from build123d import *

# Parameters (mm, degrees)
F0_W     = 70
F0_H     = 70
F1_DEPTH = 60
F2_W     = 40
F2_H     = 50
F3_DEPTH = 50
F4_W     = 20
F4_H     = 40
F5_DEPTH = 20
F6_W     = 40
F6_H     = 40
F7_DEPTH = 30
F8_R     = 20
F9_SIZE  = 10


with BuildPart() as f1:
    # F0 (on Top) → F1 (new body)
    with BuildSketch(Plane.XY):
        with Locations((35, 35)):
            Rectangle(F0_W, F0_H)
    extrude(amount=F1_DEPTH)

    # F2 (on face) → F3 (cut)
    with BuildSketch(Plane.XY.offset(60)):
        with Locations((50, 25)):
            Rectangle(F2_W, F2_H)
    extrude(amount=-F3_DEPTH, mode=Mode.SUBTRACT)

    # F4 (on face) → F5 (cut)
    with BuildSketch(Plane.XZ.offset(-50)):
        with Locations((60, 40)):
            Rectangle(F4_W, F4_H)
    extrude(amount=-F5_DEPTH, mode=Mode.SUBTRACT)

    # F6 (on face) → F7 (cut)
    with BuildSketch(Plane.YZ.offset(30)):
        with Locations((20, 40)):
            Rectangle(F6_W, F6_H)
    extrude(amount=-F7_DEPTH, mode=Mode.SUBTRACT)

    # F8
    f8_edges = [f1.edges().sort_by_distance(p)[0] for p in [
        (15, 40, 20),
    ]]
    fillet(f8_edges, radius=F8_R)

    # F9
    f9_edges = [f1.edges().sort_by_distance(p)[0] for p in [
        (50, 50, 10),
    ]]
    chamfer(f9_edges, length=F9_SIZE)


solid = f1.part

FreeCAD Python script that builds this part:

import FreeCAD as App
import Part
import Sketcher

V = App.Vector


def edges_at(feature, points):
    """Names of the edges that pass closest to the given points."""
    edges = feature.Shape.Edges
    near = lambda p: min(range(len(edges)), key=lambda i: edges[i].distToShape(Part.Vertex(*p))[0])
    return sorted({f"Edge{near(p) + 1}" for p in points})

doc = App.newDocument("Part")
body = doc.addObject("PartDesign::Body", "Body")

# Sketch on XY plane
sketch1 = body.newObject("Sketcher::SketchObject", "Sketch")
sketch1.AttachmentSupport = (doc.getObject("XY_Plane"), [""])
sketch1.MapMode = "FlatFace"
sketch1.addGeometry([
    Part.LineSegment(V(0, 70, 0), V(0, 0, 0)),
    Part.LineSegment(V(0, 0, 0), V(70, 0, 0)),
    Part.LineSegment(V(70, 0, 0), V(70, 70, 0)),
    Part.LineSegment(V(70, 70, 0), V(0, 70, 0)),
], False)
sketch1.addConstraint([
    Sketcher.Constraint("Coincident", 0, 2, 1, 1),
    Sketcher.Constraint("Coincident", 1, 2, 2, 1),
    Sketcher.Constraint("Coincident", 2, 2, 3, 1),
    Sketcher.Constraint("Coincident", 3, 2, 0, 1),
    Sketcher.Constraint("Vertical", 0),
    Sketcher.Constraint("Horizontal", 1),
    Sketcher.Constraint("Vertical", 2),
    Sketcher.Constraint("Horizontal", 3),
    Sketcher.Constraint("Coincident", 0, 2, -1, 1),
    Sketcher.Constraint("Equal", 3, 0),
    Sketcher.Constraint("DistanceX", 1, 1, 1, 2, 70.0),
])
pad1 = body.newObject("PartDesign::Pad", "Pad")
pad1.Profile = sketch1
pad1.Length = 60

# Sketch on XY plane
sketch2 = body.newObject("Sketcher::SketchObject", "Sketch001")
sketch2.AttachmentSupport = (doc.getObject("XY_Plane"), [""])
sketch2.MapMode = "FlatFace"
sketch2.AttachmentOffset = App.Placement(V(0, 0, 60), App.Rotation())
sketch2.addGeometry([
    Part.LineSegment(V(30, 50, 0), V(30, 0, 0)),
    Part.LineSegment(V(30, 0, 0), V(70, 0, 0)),
    Part.LineSegment(V(70, 0, 0), V(70, 50, 0)),
    Part.LineSegment(V(70, 50, 0), V(30, 50, 0)),
], False)
sketch2.addConstraint([
    Sketcher.Constraint("Coincident", 0, 2, 1, 1),
    Sketcher.Constraint("Coincident", 1, 2, 2, 1),
    Sketcher.Constraint("Coincident", 2, 2, 3, 1),
    Sketcher.Constraint("Coincident", 3, 2, 0, 1),
    Sketcher.Constraint("Vertical", 0),
    Sketcher.Constraint("Horizontal", 1),
    Sketcher.Constraint("Vertical", 2),
    Sketcher.Constraint("Horizontal", 3),
    Sketcher.Constraint("PointOnObject", 0, 2, -1),
    Sketcher.Constraint("DistanceX", 1, 1, 1, 2, 40.0),
    Sketcher.Constraint("DistanceY", 0, 2, 0, 1, 50.0),
    Sketcher.Constraint("DistanceX", -1, 1, 0, 2, 30.0),
])
pocket1 = body.newObject("PartDesign::Pocket", "Pocket")
pocket1.Profile = sketch2
pocket1.Length = 50

# Sketch on XZ plane
sketch3 = body.newObject("Sketcher::SketchObject", "Sketch002")
sketch3.AttachmentSupport = (doc.getObject("XZ_Plane"), [""])
sketch3.MapMode = "FlatFace"
sketch3.AttachmentOffset = App.Placement(V(0, 0, -50), App.Rotation())
sketch3.addGeometry([
    Part.LineSegment(V(50, 60, 0), V(50, 20, 0)),
    Part.LineSegment(V(50, 20, 0), V(70, 20, 0)),
    Part.LineSegment(V(70, 20, 0), V(70, 60, 0)),
    Part.LineSegment(V(70, 60, 0), V(50, 60, 0)),
], False)
sketch3.addConstraint([
    Sketcher.Constraint("Coincident", 0, 2, 1, 1),
    Sketcher.Constraint("Coincident", 1, 2, 2, 1),
    Sketcher.Constraint("Coincident", 2, 2, 3, 1),
    Sketcher.Constraint("Coincident", 3, 2, 0, 1),
    Sketcher.Constraint("Vertical", 0),
    Sketcher.Constraint("Horizontal", 1),
    Sketcher.Constraint("Vertical", 2),
    Sketcher.Constraint("Horizontal", 3),
    Sketcher.Constraint("DistanceX", 1, 1, 1, 2, 20.0),
    Sketcher.Constraint("DistanceY", 0, 2, 0, 1, 40.0),
    Sketcher.Constraint("DistanceX", -1, 1, 0, 2, 50.0),
    Sketcher.Constraint("DistanceY", -1, 1, 0, 2, 20.0),
])
pocket2 = body.newObject("PartDesign::Pocket", "Pocket001")
pocket2.Profile = sketch3
pocket2.Length = 20

# Sketch on YZ plane
sketch4 = body.newObject("Sketcher::SketchObject", "Sketch003")
sketch4.AttachmentSupport = (doc.getObject("YZ_Plane"), [""])
sketch4.MapMode = "FlatFace"
sketch4.AttachmentOffset = App.Placement(V(0, 0, 30), App.Rotation())
sketch4.addGeometry([
    Part.LineSegment(V(0, 60, 0), V(0, 20, 0)),
    Part.LineSegment(V(0, 20, 0), V(40, 20, 0)),
    Part.LineSegment(V(40, 20, 0), V(40, 60, 0)),
    Part.LineSegment(V(40, 60, 0), V(0, 60, 0)),
], False)
sketch4.addConstraint([
    Sketcher.Constraint("Coincident", 0, 2, 1, 1),
    Sketcher.Constraint("Coincident", 1, 2, 2, 1),
    Sketcher.Constraint("Coincident", 2, 2, 3, 1),
    Sketcher.Constraint("Coincident", 3, 2, 0, 1),
    Sketcher.Constraint("Vertical", 0),
    Sketcher.Constraint("Horizontal", 1),
    Sketcher.Constraint("Vertical", 2),
    Sketcher.Constraint("Horizontal", 3),
    Sketcher.Constraint("PointOnObject", 0, 2, -2),
    Sketcher.Constraint("Equal", 3, 0),
    Sketcher.Constraint("DistanceX", 1, 1, 1, 2, 40.0),
    Sketcher.Constraint("DistanceY", -1, 1, 0, 2, 20.0),
])
pocket3 = body.newObject("PartDesign::Pocket", "Pocket002")
pocket3.Profile = sketch4
pocket3.Length = 30
doc.recompute()

fillet = body.newObject("PartDesign::Fillet", "Fillet")
fillet.Base = (pocket3, edges_at(pocket3, [(15, 40, 20)]))
fillet.Radius = 20
doc.recompute()

chamfer = body.newObject("PartDesign::Chamfer", "Chamfer")
chamfer.Base = (fillet, edges_at(fillet, [(50, 50, 10)]))
chamfer.Size = 10

doc.recompute()
